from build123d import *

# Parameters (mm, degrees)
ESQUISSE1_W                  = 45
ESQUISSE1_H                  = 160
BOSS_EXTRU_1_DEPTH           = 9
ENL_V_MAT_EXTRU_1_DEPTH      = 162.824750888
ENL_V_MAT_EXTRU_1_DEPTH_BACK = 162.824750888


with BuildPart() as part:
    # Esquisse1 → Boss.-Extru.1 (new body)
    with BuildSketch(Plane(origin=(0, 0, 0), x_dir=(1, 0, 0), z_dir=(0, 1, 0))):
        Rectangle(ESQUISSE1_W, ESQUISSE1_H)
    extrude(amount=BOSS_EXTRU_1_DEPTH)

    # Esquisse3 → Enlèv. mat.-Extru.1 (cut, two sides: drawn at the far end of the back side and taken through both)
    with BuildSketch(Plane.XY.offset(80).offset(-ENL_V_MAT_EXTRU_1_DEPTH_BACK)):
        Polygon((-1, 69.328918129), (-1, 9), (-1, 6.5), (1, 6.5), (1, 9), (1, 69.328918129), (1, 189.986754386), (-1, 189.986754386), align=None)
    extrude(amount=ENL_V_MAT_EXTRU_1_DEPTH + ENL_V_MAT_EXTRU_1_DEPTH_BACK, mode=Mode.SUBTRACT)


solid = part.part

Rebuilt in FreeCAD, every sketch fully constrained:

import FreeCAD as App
import Part
import Sketcher
Q = App.Units.Quantity

doc = App.newDocument("Part")
params = doc.addObject("Spreadsheet::Sheet", "Params")
for row, (alias, value) in enumerate([
    ("sketch1_width", "45 mm"),
    ("sketch1_height", "160 mm"),
    ("pad1_length", "9 mm"),
    ("sketch2_width", "2 mm"),
], start=1):
    params.set(f"A{row}", alias)
    params.set(f"B{row}", "=" + value)
    params.setAlias(f"B{row}", alias)

body = doc.addObject("PartDesign::Body", "Body")

# Sketch on XZ plane
sketch1 = body.newObject("Sketcher::SketchObject", "Sketch")
sketch1.AttachmentSupport = (doc.getObject("XZ_Plane"), [""])
sketch1.MapMode = "FlatFace"
sketch1.addGeometry([
    Part.LineSegment(App.Vector(-22, -80, 0), App.Vector(-22, 80, 0)),
    Part.LineSegment(App.Vector(-22, 80, 0), App.Vector(22, 80, 0)),
    Part.LineSegment(App.Vector(22, 80, 0), App.Vector(22, -80, 0)),
    Part.LineSegment(App.Vector(22, -80, 0), App.Vector(-22, -80, 0)),
], False)
sketch1.addConstraint([
    Sketcher.Constraint("Coincident", 0, 2, 1, 1),
    Sketcher.Constraint("Coincident", 1, 2, 2, 1),
    Sketcher.Constraint("Coincident", 2, 2, 3, 1),
    Sketcher.Constraint("Coincident", 3, 2, 0, 1),
    Sketcher.Constraint("Vertical", 0),
    Sketcher.Constraint("Horizontal", 1),
    Sketcher.Constraint("Vertical", 2),
    Sketcher.Constraint("Horizontal", 3),
    Sketcher.Constraint("Symmetric", 0, 2, 2, 2, -1, 1),
    Sketcher.Constraint("DistanceX", 1, 1, 1, 2, Q("45 mm")),
    Sketcher.Constraint("DistanceY", 0, 1, 0, 2, Q("160 mm")),
])
sketch1.setExpression("Constraints[9]", "Params.sketch1_width")
sketch1.setExpression("Constraints[10]", "Params.sketch1_height")
pad1 = body.newObject("PartDesign::Pad", "Pad")
pad1.Profile = sketch1
pad1.setExpression("Length", "Params.pad1_length")
pad1.Reversed = True

# Sketch on XY plane
sketch2 = body.newObject("Sketcher::SketchObject", "Sketch001")
sketch2.AttachmentSupport = (doc.getObject("XY_Plane"), [""])
sketch2.MapMode = "FlatFace"
sketch2.AttachmentOffset = App.Placement(App.Vector(0, 0, 80), App.Rotation())
sketch2.addGeometry([
    Part.LineSegment(App.Vector(-1, 6.5, 0), App.Vector(1, 6.5, 0)),
    Part.LineSegment(App.Vector(1, 6.5, 0), App.Vector(1, 190, 0)),
    Part.LineSegment(App.Vector(1, 190, 0), App.Vector(-1, 190, 0)),
    Part.LineSegment(App.Vector(-1, 190, 0), App.Vector(-1, 6.5, 0)),
], False)
sketch2.addConstraint([
    Sketcher.Constraint("Coincident", 0, 2, 1, 1),
    Sketcher.Constraint("Coincident", 1, 2, 2, 1),
    Sketcher.Constraint("Coincident", 2, 2, 3, 1),
    Sketcher.Constraint("Coincident", 3, 2, 0, 1),
    Sketcher.Constraint("Horizontal", 0),
    Sketcher.Constraint("Vertical", 1),
    Sketcher.Constraint("Horizontal", 2),
    Sketcher.Constraint("Vertical", 3),
    Sketcher.Constraint("DistanceX", 0, 1, 0, 2, Q("2 mm")),
    Sketcher.Constraint("DistanceX", -1, 1, 0, 2, Q("1 mm")),
    Sketcher.Constraint("DistanceY", -1, 1, 0, 2, Q("6.5 mm")),
    Sketcher.Constraint("DistanceY", 1, 1, 1, 2, Q("183.486754 mm")),
])
sketch2.setExpression("Constraints[8]", "Params.sketch2_width")
pocket1 = body.newObject("PartDesign::Pocket", "Pocket")
pocket1.Profile = sketch2
pocket1.Type = "ThroughAll"
pocket1.Midplane = True

doc.recompute()
